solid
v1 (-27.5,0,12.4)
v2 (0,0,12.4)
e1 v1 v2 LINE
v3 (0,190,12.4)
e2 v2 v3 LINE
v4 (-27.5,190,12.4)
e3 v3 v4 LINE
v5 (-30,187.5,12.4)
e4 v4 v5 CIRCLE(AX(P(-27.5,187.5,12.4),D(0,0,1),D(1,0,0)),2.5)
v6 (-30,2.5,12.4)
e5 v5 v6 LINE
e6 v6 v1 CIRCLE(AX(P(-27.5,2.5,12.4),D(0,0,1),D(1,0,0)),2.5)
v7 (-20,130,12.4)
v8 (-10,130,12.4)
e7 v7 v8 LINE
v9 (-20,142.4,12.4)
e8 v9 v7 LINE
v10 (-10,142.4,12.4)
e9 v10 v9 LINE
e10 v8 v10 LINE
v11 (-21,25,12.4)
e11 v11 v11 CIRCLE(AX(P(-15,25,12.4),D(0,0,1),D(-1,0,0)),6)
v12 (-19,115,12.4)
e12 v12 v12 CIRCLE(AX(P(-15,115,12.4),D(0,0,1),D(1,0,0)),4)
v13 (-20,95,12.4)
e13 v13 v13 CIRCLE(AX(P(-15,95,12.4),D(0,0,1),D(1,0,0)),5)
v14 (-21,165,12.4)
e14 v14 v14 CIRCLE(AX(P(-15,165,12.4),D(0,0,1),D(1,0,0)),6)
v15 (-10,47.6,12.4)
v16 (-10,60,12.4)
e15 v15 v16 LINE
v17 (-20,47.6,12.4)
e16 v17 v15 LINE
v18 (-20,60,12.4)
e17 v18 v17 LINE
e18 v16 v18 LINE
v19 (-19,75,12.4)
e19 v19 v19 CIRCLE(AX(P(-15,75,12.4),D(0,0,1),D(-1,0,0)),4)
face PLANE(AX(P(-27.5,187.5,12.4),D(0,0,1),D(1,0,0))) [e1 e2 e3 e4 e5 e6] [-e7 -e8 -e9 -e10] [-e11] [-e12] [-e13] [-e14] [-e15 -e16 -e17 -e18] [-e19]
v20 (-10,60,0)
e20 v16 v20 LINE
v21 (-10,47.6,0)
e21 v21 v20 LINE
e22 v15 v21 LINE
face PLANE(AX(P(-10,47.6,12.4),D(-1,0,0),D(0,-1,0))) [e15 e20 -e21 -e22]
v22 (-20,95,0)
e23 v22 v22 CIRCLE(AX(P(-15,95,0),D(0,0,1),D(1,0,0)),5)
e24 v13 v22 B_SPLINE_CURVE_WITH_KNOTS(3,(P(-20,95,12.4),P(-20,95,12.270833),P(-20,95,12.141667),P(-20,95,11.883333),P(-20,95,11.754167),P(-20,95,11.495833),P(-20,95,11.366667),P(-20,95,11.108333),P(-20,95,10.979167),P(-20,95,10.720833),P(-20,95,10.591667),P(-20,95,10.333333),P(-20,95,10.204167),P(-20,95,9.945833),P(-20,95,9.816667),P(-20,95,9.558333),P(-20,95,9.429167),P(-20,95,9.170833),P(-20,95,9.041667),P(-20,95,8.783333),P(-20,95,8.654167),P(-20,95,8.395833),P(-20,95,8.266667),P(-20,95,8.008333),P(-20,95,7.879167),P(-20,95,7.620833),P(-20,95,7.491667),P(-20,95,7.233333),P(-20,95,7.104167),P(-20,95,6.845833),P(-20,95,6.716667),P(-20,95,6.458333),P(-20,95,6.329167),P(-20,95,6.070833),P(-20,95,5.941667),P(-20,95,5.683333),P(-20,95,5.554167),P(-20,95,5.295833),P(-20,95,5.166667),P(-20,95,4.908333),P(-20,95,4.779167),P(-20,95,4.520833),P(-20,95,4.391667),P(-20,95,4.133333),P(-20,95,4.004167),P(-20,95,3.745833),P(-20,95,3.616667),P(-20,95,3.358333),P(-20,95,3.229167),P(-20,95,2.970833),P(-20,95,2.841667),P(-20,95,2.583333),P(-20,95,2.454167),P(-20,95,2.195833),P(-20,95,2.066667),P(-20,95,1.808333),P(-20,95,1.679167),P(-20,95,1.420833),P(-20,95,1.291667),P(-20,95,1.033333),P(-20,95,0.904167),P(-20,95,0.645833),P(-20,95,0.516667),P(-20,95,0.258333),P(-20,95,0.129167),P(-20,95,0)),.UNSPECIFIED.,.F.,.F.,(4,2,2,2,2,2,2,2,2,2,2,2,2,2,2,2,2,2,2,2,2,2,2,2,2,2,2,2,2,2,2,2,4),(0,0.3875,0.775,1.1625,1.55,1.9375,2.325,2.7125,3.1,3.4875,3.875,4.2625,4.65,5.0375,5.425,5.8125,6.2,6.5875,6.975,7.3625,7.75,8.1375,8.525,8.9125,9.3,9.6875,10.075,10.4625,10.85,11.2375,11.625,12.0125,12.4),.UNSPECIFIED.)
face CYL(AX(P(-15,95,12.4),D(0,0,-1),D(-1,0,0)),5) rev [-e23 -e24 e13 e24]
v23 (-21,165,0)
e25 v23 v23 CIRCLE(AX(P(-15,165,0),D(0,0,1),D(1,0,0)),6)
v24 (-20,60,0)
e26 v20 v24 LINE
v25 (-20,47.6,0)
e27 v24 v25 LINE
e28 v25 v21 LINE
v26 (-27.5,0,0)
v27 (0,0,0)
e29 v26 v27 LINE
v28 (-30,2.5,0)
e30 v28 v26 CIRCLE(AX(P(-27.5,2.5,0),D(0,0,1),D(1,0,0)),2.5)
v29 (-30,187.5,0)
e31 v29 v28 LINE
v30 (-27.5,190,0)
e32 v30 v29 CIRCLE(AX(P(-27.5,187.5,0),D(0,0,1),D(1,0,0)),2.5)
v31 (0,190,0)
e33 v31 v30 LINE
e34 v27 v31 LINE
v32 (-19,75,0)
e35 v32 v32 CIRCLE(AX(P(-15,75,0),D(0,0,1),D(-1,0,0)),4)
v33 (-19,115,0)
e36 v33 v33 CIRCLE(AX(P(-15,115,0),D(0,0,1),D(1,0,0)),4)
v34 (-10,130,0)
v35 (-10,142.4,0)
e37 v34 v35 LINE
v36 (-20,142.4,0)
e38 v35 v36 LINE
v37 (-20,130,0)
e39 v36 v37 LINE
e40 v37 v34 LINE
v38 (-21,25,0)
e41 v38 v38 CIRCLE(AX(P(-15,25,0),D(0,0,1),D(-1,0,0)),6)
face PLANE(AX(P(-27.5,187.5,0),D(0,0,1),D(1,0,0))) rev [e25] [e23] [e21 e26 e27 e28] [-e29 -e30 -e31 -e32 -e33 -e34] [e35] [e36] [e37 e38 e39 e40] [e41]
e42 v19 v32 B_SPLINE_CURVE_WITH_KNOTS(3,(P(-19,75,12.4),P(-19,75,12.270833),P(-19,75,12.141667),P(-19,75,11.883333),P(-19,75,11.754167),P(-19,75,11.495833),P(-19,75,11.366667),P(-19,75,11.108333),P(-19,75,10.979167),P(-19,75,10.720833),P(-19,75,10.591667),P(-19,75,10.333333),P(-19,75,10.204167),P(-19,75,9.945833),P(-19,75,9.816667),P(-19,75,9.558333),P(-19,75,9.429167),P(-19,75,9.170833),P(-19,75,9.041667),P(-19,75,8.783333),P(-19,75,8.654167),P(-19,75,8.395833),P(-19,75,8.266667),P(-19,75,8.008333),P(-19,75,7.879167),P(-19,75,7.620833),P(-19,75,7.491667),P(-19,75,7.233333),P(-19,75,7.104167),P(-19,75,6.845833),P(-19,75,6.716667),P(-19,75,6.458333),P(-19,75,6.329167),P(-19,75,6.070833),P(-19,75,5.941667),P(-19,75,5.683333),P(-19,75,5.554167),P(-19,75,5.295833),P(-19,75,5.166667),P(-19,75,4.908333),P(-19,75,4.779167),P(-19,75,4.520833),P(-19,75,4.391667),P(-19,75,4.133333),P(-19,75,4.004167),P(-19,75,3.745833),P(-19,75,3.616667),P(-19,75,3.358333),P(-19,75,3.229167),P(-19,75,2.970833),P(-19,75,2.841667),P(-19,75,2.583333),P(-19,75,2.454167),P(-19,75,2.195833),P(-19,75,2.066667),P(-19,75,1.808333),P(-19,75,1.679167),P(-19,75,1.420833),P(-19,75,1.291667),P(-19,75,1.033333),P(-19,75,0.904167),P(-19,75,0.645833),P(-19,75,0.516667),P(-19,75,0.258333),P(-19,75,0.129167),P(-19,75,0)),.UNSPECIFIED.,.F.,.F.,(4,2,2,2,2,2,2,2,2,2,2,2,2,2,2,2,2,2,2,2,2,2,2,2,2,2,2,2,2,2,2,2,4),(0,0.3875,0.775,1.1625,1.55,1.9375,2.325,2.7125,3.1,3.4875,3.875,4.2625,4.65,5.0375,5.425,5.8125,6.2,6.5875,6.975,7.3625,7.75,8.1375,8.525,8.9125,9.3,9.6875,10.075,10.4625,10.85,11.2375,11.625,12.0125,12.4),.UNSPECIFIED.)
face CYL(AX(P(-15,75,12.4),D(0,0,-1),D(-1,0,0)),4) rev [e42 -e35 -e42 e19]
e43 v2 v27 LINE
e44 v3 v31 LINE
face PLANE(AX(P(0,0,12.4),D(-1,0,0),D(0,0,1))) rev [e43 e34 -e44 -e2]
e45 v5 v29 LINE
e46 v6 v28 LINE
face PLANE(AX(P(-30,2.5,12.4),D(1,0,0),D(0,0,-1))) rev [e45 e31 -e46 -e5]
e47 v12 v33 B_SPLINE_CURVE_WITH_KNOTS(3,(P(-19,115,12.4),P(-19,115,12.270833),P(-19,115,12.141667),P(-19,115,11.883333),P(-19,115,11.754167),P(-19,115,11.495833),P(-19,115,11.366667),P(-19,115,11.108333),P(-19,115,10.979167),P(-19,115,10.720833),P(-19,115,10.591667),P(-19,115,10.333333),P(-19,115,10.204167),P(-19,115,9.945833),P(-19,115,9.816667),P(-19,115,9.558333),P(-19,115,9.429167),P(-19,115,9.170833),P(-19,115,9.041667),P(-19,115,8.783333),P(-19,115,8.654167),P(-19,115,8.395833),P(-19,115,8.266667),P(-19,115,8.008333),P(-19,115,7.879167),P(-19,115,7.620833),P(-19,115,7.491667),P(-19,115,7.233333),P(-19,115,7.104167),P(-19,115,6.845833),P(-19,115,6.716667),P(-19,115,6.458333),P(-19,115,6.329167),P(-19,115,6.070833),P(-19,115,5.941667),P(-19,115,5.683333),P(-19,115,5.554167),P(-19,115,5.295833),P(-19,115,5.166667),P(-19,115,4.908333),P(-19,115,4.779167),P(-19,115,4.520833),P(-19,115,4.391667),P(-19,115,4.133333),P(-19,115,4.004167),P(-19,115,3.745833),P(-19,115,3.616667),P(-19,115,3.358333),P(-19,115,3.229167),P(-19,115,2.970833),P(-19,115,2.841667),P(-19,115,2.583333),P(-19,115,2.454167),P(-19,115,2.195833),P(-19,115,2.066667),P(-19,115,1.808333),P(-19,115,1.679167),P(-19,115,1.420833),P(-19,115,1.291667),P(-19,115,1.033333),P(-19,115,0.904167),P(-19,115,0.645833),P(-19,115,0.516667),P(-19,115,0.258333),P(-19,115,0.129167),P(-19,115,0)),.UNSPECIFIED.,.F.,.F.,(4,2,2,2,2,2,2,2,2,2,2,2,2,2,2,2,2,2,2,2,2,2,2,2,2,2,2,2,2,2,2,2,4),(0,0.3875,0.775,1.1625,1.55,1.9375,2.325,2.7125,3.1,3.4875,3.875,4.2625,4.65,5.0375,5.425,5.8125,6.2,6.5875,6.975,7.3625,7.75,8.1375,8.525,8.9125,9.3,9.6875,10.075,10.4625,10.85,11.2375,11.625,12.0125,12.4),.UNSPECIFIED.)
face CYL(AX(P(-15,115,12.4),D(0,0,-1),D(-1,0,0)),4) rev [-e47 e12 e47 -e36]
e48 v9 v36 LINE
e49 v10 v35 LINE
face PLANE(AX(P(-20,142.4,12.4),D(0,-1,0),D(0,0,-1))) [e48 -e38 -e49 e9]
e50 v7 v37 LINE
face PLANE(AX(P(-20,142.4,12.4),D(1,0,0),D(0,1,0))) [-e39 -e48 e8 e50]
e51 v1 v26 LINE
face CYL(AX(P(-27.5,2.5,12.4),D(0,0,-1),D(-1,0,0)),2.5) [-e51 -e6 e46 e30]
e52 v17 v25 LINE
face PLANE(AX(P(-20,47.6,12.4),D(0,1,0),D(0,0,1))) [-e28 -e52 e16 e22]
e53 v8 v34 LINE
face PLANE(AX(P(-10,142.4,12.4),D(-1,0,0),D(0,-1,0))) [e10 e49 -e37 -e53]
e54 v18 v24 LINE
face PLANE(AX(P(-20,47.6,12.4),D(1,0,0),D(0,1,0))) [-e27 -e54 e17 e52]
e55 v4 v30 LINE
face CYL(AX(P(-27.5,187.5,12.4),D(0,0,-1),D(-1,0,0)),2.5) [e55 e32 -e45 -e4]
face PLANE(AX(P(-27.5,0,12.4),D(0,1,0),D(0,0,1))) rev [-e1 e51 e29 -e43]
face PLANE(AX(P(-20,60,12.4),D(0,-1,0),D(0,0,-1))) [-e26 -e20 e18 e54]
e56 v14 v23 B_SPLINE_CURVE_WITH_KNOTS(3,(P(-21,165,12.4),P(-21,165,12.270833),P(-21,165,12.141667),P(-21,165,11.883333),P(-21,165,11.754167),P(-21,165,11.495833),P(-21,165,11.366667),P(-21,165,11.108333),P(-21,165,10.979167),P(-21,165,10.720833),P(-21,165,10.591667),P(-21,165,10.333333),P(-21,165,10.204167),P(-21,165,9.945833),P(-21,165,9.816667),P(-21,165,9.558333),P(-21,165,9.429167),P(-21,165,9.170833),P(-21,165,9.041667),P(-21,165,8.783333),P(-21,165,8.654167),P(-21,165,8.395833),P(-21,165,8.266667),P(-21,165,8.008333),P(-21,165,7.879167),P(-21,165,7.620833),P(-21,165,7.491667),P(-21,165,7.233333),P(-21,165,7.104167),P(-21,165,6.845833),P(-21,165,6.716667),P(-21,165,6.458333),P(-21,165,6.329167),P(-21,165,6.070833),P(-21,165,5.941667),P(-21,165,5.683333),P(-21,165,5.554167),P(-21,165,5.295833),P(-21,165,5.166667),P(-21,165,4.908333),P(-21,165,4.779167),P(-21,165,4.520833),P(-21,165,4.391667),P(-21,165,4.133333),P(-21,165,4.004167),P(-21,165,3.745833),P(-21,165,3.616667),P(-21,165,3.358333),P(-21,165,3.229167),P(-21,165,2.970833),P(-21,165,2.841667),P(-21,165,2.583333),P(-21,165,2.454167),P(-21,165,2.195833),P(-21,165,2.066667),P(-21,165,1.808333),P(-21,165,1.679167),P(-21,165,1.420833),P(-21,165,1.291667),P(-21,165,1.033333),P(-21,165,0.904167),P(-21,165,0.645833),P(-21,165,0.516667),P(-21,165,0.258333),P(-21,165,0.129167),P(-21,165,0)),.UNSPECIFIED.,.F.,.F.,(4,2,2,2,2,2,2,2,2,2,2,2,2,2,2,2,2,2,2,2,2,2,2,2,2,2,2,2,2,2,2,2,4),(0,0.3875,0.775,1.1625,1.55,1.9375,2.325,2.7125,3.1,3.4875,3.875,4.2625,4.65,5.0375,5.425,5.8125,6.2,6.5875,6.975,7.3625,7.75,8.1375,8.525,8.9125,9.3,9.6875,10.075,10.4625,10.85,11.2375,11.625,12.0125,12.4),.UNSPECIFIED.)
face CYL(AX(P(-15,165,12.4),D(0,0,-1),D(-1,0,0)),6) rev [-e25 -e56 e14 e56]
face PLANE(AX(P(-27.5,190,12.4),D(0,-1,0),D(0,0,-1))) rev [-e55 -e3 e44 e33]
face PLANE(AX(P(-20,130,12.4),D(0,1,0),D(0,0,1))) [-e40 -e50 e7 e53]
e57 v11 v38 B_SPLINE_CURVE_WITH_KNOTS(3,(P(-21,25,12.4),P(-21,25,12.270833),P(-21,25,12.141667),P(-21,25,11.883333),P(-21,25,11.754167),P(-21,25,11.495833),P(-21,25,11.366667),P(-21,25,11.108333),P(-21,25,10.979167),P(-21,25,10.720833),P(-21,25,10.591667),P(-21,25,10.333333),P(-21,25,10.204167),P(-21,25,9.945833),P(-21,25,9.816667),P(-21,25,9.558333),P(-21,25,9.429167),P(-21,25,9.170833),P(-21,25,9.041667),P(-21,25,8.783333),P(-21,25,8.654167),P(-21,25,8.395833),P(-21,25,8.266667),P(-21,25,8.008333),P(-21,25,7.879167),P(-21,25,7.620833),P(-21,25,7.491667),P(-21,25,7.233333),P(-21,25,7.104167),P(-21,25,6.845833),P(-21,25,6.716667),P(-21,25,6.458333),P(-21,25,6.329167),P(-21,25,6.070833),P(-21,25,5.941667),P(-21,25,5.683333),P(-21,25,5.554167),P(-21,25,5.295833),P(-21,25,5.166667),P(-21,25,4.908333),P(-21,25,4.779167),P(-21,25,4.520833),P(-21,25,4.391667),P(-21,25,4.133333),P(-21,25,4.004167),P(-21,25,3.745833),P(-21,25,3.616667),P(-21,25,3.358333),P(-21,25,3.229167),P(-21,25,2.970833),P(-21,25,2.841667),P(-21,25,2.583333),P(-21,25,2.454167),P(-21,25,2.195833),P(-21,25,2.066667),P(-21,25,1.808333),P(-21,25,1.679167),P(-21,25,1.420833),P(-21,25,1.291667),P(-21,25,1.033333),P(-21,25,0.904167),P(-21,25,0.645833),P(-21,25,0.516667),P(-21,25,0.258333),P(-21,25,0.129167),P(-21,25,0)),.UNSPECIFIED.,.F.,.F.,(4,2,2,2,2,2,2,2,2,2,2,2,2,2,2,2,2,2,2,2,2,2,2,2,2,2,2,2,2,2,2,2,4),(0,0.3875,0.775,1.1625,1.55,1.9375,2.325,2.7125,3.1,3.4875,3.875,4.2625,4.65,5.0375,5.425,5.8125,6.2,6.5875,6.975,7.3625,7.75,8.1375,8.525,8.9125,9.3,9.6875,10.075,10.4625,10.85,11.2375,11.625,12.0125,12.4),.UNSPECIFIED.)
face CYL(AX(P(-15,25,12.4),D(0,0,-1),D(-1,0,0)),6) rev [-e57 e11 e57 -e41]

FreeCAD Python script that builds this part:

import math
import FreeCAD as App
import Part
import Sketcher
from FreeCAD import Vector
Q = App.Units.Quantity


def add_polygon(sketch, points):
    """Adds a closed chain of lines whose ends are joined by coincident constraints."""
    first, n = sketch.GeometryCount, len(points)
    for a, b in zip(points, points[1:] + points[:1]):
        sketch.addGeometry(Part.LineSegment(App.Vector(*a, 0), App.Vector(*b, 0)), False)
    for i in range(n):
        sketch.addConstraint(Sketcher.Constraint("Coincident", first + i, 2, first + (i + 1) % n, 1))

doc = App.newDocument("Part")
body = doc.addObject("PartDesign::Body", "Body")

# Sketch on XY plane
sketch1 = doc.addObject("Sketcher::SketchObject", "Sketch")
body.addObject(sketch1)
sketch1.AttachmentSupport = (doc.XY_Plane, [""])
sketch1.MapMode = "FlatFace"
sketch1.addGeometry(Part.LineSegment(Vector(-27.5, 0, 0), Vector(0, 0, 0)), False)  # 0
sketch1.addGeometry(Part.LineSegment(Vector(0, 0, 0), Vector(0, 190, 0)), False)  # 1
sketch1.addGeometry(Part.LineSegment(Vector(0, 190, 0), Vector(-27.5, 190, 0)), False)  # 2
sketch1.addGeometry(Part.ArcOfCircle(Part.Circle(Vector(-27.5, 187.5, 0), Vector(0, 0, 1), 2.5), math.radians(90), math.radians(180)), False)  # 3
sketch1.addGeometry(Part.LineSegment(Vector(-30, 187.5, 0), Vector(-30, 2.5, 0)), False)  # 4
sketch1.addGeometry(Part.ArcOfCircle(Part.Circle(Vector(-27.5, 2.5, 0), Vector(0, 0, 1), 2.5), math.radians(180), math.radians(270)), False)  # 5
sketch1.addGeometry(Part.Circle(Vector(-15, 25, 0), Vector(0, 0, 1), 6), False)  # 6
add_polygon(sketch1, [(-10, 47.6), (-20, 47.6), (-20, 60), (-10, 60)])  # lines 7-10
sketch1.addGeometry(Part.Circle(Vector(-15, 75, 0), Vector(0, 0, 1), 4), False)  # 11
sketch1.addGeometry(Part.Circle(Vector(-15, 95, 0), Vector(0, 0, 1), 5), False)  # 12
sketch1.addGeometry(Part.Circle(Vector(-15, 115, 0), Vector(0, 0, 1), 4), False)  # 13
add_polygon(sketch1, [(-10, 130), (-20, 130), (-20, 142.4), (-10, 142.4)])  # lines 14-17
sketch1.addGeometry(Part.Circle(Vector(-15, 165, 0), Vector(0, 0, 1), 6), False)  # 18
sketch1.addConstraint(Sketcher.Constraint("Coincident", 0, 2, 1, 1))
sketch1.addConstraint(Sketcher.Constraint("Coincident", 1, 2, 2, 1))
sketch1.addConstraint(Sketcher.Constraint("Tangent", 2, 2, 3, 1))
sketch1.addConstraint(Sketcher.Constraint("Tangent", 3, 2, 4, 1))
sketch1.addConstraint(Sketcher.Constraint("Tangent", 4, 2, 5, 1))
sketch1.addConstraint(Sketcher.Constraint("Tangent", 5, 2, 0, 1))
sketch1.addConstraint(Sketcher.Constraint("Horizontal", 0))
sketch1.addConstraint(Sketcher.Constraint("Vertical", 1))
sketch1.addConstraint(Sketcher.Constraint("Horizontal", 2))
sketch1.addConstraint(Sketcher.Constraint("Vertical", 4))
sketch1.addConstraint(Sketcher.Constraint("Horizontal", 7))
sketch1.addConstraint(Sketcher.Constraint("Vertical", 8))
sketch1.addConstraint(Sketcher.Constraint("Horizontal", 9))
sketch1.addConstraint(Sketcher.Constraint("Vertical", 10))
sketch1.addConstraint(Sketcher.Constraint("Horizontal", 14))
sketch1.addConstraint(Sketcher.Constraint("Vertical", 15))
sketch1.addConstraint(Sketcher.Constraint("Horizontal", 16))
sketch1.addConstraint(Sketcher.Constraint("Vertical", 17))
sketch1.addConstraint(Sketcher.Constraint("Coincident", 0, 2, -1, 1))
sketch1.addConstraint(Sketcher.Constraint("Equal", 3, 5))
sketch1.addConstraint(Sketcher.Constraint("Equal", 11, 13))
sketch1.addConstraint(Sketcher.Constraint("Equal", 6, 18))
sketch1.addConstraint(Sketcher.Constraint("Vertical", 6, 3, 11, 3))
sketch1.addConstraint(Sketcher.Constraint("Vertical", 11, 3, 12, 3))
sketch1.addConstraint(Sketcher.Constraint("Vertical", 12, 3, 13, 3))
sketch1.addConstraint(Sketcher.Constraint("Vertical", 13, 3, 18, 3))
sketch1.addConstraint(Sketcher.Constraint("Vertical", 8, 2, 14, 2))
sketch1.addConstraint(Sketcher.Constraint("Vertical", 10, 2, 16, 2))
sketch1.addConstraint(Sketcher.Constraint("Equal", 10, 15))
sketch1.addConstraint(Sketcher.Constraint("Diameter", 6, Q("12 mm")))
sketch1.addConstraint(Sketcher.Constraint("Diameter", 11, Q("8 mm")))
sketch1.addConstraint(Sketcher.Constraint("Diameter", 12, Q("10 mm")))
sketch1.addConstraint(Sketcher.Constraint("Radius", 3, Q("2.5 mm")))
sketch1.addConstraint(Sketcher.Constraint("DistanceX", 7, 2, 7, 1, Q("10 mm")))
sketch1.addConstraint(Sketcher.Constraint("DistanceY", 1, 1, 1, 2, Q("190 mm")))
sketch1.addConstraint(Sketcher.Constraint("DistanceX", 0, 1, 0, 2, Q("27.5 mm")))
sketch1.addConstraint(Sketcher.Constraint("DistanceY", 8, 1, 8, 2, Q("12.4 mm")))
sketch1.addConstraint(Sketcher.Constraint("DistanceX", 6, 3, -1, 1, Q("15 mm")))
sketch1.addConstraint(Sketcher.Constraint("DistanceY", -1, 1, 6, 3, Q("25 mm")))
sketch1.addConstraint(Sketcher.Constraint("DistanceY", -1, 1, 11, 3, Q("75 mm")))
sketch1.addConstraint(Sketcher.Constraint("DistanceY", -1, 1, 12, 3, Q("95 mm")))
sketch1.addConstraint(Sketcher.Constraint("DistanceY", -1, 1, 13, 3, Q("115 mm")))
sketch1.addConstraint(Sketcher.Constraint("DistanceY", -1, 1, 18, 3, Q("165 mm")))
sketch1.addConstraint(Sketcher.Constraint("DistanceX", 7, 2, -1, 1, Q("20 mm")))
sketch1.addConstraint(Sketcher.Constraint("DistanceY", -1, 1, 8, 2, Q("60 mm")))
sketch1.addConstraint(Sketcher.Constraint("DistanceY", -1, 1, 14, 2, Q("130 mm")))
pad1 = doc.addObject("PartDesign::Pad", "Pad")
body.addObject(pad1)
pad1.Profile = sketch1
pad1.Length = 12.4

doc.recompute()
